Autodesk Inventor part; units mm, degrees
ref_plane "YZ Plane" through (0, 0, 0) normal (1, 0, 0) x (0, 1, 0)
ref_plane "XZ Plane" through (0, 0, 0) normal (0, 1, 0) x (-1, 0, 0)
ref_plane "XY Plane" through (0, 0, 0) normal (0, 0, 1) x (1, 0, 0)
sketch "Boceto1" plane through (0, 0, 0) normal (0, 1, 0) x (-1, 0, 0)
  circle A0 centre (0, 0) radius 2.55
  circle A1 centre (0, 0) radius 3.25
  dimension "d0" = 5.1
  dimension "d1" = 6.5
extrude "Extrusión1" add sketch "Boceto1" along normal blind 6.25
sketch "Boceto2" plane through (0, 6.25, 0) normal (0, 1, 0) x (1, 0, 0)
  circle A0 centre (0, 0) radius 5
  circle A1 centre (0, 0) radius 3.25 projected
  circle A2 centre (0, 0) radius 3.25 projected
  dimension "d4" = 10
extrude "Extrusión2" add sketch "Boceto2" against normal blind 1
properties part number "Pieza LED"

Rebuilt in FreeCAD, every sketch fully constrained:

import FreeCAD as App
import Part
import Sketcher

V = App.Vector
Q = App.Units.Quantity

doc = App.newDocument("Part")
body = doc.addObject("PartDesign::Body", "Body")

# Sketch on XZ plane
sketch1 = doc.addObject("Sketcher::SketchObject", "Sketch")
body.addObject(sketch1)
sketch1.AttachmentSupport = (doc.XZ_Plane, [""])
sketch1.MapMode = "FlatFace"
sketch1.addGeometry(Part.Circle(V(0, 0, 0), V(0, 0, 1), 3.25), False)
sketch1.addGeometry(Part.Circle(V(0, 0, 0), V(0, 0, 1), 2.55), False)
sketch1.addConstraint(Sketcher.Constraint("Coincident", 0, 3, -1, 1))
sketch1.addConstraint(Sketcher.Constraint("Coincident", 1, 3, -1, 1))
sketch1.addConstraint(Sketcher.Constraint("Diameter", 0, Q("6.5 mm")))
sketch1.addConstraint(Sketcher.Constraint("Diameter", 1, Q("5.1 mm")))
pad1 = doc.addObject("PartDesign::Pad", "Pad")
body.addObject(pad1)
pad1.Profile = sketch1
pad1.Length = 6.25
pad1.Reversed = True

# Sketch on XZ plane
sketch2 = doc.addObject("Sketcher::SketchObject", "Sketch001")
body.addObject(sketch2)
sketch2.AttachmentSupport = (doc.XZ_Plane, [""])
sketch2.MapMode = "FlatFace"
sketch2.AttachmentOffset = App.Placement(V(0, 0, -6.25), App.Rotation())
sketch2.addGeometry(Part.Circle(V(0, 0, 0), V(0, 0, 1), 5), False)
sketch2.addGeometry(Part.Circle(V(0, 0, 0), V(0, 0, 1), 3.25), False)
sketch2.addConstraint(Sketcher.Constraint("Coincident", 0, 3, -1, 1))
sketch2.addConstraint(Sketcher.Constraint("Coincident", 1, 3, -1, 1))
sketch2.addConstraint(Sketcher.Constraint("Diameter", 0, Q("10 mm")))
sketch2.addConstraint(Sketcher.Constraint("Diameter", 1, Q("6.5 mm")))
pad2 = doc.addObject("PartDesign::Pad", "Pad001")
body.addObject(pad2)
pad2.Profile = sketch2
pad2.Length = 1

doc.recompute()
